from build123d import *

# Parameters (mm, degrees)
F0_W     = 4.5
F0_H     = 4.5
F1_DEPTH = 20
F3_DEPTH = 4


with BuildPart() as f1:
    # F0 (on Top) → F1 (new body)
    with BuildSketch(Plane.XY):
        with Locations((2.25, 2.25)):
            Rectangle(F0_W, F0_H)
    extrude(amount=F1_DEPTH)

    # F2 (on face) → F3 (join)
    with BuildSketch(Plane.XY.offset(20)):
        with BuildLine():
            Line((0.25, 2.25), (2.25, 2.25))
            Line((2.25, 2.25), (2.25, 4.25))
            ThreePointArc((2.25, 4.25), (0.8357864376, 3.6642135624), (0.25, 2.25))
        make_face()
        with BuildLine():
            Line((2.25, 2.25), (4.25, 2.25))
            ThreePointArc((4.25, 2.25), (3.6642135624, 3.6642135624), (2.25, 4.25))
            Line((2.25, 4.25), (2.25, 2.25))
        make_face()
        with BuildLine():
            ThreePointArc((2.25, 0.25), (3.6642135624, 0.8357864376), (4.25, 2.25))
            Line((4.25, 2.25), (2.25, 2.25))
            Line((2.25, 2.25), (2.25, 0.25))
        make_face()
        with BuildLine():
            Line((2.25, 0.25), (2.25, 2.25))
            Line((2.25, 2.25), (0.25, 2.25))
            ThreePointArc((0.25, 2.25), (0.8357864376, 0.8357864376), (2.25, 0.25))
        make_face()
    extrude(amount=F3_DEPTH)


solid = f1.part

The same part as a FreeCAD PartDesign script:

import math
import FreeCAD as App
import Part
import Sketcher
Q = App.Units.Quantity

doc = App.newDocument("Part")
body = doc.addObject("PartDesign::Body", "Body")

sketch1 = body.newObject("Sketcher::SketchObject", "Sketch")
sketch1.AttachmentSupport = (doc.getObject("XY_Plane"), [""])
sketch1.MapMode = "FlatFace"
sketch1.addGeometry(Part.LineSegment(App.Vector(0, 4.5, 0), App.Vector(0, 0, 0)), False)
sketch1.addGeometry(Part.LineSegment(App.Vector(0, 0, 0), App.Vector(4.5, 0, 0)), False)
sketch1.addGeometry(Part.LineSegment(App.Vector(4.5, 0, 0), App.Vector(4.5, 4.5, 0)), False)
sketch1.addGeometry(Part.LineSegment(App.Vector(4.5, 4.5, 0), App.Vector(0, 4.5, 0)), False)
sketch1.addConstraint(Sketcher.Constraint("Coincident", 0, 2, 1, 1))
sketch1.addConstraint(Sketcher.Constraint("Coincident", 1, 2, 2, 1))
sketch1.addConstraint(Sketcher.Constraint("Coincident", 2, 2, 3, 1))
sketch1.addConstraint(Sketcher.Constraint("Coincident", 3, 2, 0, 1))
sketch1.addConstraint(Sketcher.Constraint("Vertical", 0))
sketch1.addConstraint(Sketcher.Constraint("Horizontal", 1))
sketch1.addConstraint(Sketcher.Constraint("Vertical", 2))
sketch1.addConstraint(Sketcher.Constraint("Horizontal", 3))
sketch1.addConstraint(Sketcher.Constraint("Coincident", 0, 2, -1, 1))
sketch1.addConstraint(Sketcher.Constraint("Equal", 3, 0))
sketch1.addConstraint(Sketcher.Constraint("DistanceX", 1, 1, 1, 2, Q("4.5 mm")))
pad1 = body.newObject("PartDesign::Pad", "Pad")
pad1.Profile = sketch1
pad1.Length = 20

sketch2 = body.newObject("Sketcher::SketchObject", "Sketch001")
sketch2.AttachmentSupport = (doc.getObject("XY_Plane"), [""])
sketch2.MapMode = "FlatFace"
sketch2.AttachmentOffset = App.Placement(App.Vector(0, 0, 20), App.Rotation())
sketch2.addGeometry(Part.ArcOfCircle(Part.Circle(App.Vector(2.2, 2.2, 0), App.Vector(0, 0, 1), 2), math.radians(-90), math.radians(0)), False)
sketch2.addGeometry(Part.ArcOfCircle(Part.Circle(App.Vector(2.2, 2.2, 0), App.Vector(0, 0, 1), 2), math.radians(0), math.radians(90)), False)
sketch2.addGeometry(Part.ArcOfCircle(Part.Circle(App.Vector(2.2, 2.2, 0), App.Vector(0, 0, 1), 2), math.radians(90), math.radians(180)), False)
sketch2.addGeometry(Part.ArcOfCircle(Part.Circle(App.Vector(2.2, 2.2, 0), App.Vector(0, 0, 1), 2), math.radians(180), math.radians(270)), False)
sketch2.addConstraint(Sketcher.Constraint("Tangent", 0, 2, 1, 1))
sketch2.addConstraint(Sketcher.Constraint("Tangent", 1, 2, 2, 1))
sketch2.addConstraint(Sketcher.Constraint("Tangent", 2, 2, 3, 1))
sketch2.addConstraint(Sketcher.Constraint("Tangent", 3, 2, 0, 1))
sketch2.addConstraint(Sketcher.Constraint("Equal", 0, 1))
sketch2.addConstraint(Sketcher.Constraint("Horizontal", 3, 3, 0, 2))
sketch2.addConstraint(Sketcher.Constraint("Horizontal", 0, 2, 2, 2))
sketch2.addConstraint(Sketcher.Constraint("Vertical", 3, 3, 1, 2))
sketch2.addConstraint(Sketcher.Constraint("Vertical", 1, 2, 3, 2))
sketch2.addConstraint(Sketcher.Constraint("Radius", 0, Q("2 mm")))
sketch2.addConstraint(Sketcher.Constraint("DistanceX", -1, 1, 0, 3, Q("2.25 mm")))
sketch2.addConstraint(Sketcher.Constraint("DistanceY", -1, 1, 0, 3, Q("2.25 mm")))
pad2 = body.newObject("PartDesign::Pad", "Pad001")
pad2.Profile = sketch2
pad2.Length = 4

doc.recompute()
